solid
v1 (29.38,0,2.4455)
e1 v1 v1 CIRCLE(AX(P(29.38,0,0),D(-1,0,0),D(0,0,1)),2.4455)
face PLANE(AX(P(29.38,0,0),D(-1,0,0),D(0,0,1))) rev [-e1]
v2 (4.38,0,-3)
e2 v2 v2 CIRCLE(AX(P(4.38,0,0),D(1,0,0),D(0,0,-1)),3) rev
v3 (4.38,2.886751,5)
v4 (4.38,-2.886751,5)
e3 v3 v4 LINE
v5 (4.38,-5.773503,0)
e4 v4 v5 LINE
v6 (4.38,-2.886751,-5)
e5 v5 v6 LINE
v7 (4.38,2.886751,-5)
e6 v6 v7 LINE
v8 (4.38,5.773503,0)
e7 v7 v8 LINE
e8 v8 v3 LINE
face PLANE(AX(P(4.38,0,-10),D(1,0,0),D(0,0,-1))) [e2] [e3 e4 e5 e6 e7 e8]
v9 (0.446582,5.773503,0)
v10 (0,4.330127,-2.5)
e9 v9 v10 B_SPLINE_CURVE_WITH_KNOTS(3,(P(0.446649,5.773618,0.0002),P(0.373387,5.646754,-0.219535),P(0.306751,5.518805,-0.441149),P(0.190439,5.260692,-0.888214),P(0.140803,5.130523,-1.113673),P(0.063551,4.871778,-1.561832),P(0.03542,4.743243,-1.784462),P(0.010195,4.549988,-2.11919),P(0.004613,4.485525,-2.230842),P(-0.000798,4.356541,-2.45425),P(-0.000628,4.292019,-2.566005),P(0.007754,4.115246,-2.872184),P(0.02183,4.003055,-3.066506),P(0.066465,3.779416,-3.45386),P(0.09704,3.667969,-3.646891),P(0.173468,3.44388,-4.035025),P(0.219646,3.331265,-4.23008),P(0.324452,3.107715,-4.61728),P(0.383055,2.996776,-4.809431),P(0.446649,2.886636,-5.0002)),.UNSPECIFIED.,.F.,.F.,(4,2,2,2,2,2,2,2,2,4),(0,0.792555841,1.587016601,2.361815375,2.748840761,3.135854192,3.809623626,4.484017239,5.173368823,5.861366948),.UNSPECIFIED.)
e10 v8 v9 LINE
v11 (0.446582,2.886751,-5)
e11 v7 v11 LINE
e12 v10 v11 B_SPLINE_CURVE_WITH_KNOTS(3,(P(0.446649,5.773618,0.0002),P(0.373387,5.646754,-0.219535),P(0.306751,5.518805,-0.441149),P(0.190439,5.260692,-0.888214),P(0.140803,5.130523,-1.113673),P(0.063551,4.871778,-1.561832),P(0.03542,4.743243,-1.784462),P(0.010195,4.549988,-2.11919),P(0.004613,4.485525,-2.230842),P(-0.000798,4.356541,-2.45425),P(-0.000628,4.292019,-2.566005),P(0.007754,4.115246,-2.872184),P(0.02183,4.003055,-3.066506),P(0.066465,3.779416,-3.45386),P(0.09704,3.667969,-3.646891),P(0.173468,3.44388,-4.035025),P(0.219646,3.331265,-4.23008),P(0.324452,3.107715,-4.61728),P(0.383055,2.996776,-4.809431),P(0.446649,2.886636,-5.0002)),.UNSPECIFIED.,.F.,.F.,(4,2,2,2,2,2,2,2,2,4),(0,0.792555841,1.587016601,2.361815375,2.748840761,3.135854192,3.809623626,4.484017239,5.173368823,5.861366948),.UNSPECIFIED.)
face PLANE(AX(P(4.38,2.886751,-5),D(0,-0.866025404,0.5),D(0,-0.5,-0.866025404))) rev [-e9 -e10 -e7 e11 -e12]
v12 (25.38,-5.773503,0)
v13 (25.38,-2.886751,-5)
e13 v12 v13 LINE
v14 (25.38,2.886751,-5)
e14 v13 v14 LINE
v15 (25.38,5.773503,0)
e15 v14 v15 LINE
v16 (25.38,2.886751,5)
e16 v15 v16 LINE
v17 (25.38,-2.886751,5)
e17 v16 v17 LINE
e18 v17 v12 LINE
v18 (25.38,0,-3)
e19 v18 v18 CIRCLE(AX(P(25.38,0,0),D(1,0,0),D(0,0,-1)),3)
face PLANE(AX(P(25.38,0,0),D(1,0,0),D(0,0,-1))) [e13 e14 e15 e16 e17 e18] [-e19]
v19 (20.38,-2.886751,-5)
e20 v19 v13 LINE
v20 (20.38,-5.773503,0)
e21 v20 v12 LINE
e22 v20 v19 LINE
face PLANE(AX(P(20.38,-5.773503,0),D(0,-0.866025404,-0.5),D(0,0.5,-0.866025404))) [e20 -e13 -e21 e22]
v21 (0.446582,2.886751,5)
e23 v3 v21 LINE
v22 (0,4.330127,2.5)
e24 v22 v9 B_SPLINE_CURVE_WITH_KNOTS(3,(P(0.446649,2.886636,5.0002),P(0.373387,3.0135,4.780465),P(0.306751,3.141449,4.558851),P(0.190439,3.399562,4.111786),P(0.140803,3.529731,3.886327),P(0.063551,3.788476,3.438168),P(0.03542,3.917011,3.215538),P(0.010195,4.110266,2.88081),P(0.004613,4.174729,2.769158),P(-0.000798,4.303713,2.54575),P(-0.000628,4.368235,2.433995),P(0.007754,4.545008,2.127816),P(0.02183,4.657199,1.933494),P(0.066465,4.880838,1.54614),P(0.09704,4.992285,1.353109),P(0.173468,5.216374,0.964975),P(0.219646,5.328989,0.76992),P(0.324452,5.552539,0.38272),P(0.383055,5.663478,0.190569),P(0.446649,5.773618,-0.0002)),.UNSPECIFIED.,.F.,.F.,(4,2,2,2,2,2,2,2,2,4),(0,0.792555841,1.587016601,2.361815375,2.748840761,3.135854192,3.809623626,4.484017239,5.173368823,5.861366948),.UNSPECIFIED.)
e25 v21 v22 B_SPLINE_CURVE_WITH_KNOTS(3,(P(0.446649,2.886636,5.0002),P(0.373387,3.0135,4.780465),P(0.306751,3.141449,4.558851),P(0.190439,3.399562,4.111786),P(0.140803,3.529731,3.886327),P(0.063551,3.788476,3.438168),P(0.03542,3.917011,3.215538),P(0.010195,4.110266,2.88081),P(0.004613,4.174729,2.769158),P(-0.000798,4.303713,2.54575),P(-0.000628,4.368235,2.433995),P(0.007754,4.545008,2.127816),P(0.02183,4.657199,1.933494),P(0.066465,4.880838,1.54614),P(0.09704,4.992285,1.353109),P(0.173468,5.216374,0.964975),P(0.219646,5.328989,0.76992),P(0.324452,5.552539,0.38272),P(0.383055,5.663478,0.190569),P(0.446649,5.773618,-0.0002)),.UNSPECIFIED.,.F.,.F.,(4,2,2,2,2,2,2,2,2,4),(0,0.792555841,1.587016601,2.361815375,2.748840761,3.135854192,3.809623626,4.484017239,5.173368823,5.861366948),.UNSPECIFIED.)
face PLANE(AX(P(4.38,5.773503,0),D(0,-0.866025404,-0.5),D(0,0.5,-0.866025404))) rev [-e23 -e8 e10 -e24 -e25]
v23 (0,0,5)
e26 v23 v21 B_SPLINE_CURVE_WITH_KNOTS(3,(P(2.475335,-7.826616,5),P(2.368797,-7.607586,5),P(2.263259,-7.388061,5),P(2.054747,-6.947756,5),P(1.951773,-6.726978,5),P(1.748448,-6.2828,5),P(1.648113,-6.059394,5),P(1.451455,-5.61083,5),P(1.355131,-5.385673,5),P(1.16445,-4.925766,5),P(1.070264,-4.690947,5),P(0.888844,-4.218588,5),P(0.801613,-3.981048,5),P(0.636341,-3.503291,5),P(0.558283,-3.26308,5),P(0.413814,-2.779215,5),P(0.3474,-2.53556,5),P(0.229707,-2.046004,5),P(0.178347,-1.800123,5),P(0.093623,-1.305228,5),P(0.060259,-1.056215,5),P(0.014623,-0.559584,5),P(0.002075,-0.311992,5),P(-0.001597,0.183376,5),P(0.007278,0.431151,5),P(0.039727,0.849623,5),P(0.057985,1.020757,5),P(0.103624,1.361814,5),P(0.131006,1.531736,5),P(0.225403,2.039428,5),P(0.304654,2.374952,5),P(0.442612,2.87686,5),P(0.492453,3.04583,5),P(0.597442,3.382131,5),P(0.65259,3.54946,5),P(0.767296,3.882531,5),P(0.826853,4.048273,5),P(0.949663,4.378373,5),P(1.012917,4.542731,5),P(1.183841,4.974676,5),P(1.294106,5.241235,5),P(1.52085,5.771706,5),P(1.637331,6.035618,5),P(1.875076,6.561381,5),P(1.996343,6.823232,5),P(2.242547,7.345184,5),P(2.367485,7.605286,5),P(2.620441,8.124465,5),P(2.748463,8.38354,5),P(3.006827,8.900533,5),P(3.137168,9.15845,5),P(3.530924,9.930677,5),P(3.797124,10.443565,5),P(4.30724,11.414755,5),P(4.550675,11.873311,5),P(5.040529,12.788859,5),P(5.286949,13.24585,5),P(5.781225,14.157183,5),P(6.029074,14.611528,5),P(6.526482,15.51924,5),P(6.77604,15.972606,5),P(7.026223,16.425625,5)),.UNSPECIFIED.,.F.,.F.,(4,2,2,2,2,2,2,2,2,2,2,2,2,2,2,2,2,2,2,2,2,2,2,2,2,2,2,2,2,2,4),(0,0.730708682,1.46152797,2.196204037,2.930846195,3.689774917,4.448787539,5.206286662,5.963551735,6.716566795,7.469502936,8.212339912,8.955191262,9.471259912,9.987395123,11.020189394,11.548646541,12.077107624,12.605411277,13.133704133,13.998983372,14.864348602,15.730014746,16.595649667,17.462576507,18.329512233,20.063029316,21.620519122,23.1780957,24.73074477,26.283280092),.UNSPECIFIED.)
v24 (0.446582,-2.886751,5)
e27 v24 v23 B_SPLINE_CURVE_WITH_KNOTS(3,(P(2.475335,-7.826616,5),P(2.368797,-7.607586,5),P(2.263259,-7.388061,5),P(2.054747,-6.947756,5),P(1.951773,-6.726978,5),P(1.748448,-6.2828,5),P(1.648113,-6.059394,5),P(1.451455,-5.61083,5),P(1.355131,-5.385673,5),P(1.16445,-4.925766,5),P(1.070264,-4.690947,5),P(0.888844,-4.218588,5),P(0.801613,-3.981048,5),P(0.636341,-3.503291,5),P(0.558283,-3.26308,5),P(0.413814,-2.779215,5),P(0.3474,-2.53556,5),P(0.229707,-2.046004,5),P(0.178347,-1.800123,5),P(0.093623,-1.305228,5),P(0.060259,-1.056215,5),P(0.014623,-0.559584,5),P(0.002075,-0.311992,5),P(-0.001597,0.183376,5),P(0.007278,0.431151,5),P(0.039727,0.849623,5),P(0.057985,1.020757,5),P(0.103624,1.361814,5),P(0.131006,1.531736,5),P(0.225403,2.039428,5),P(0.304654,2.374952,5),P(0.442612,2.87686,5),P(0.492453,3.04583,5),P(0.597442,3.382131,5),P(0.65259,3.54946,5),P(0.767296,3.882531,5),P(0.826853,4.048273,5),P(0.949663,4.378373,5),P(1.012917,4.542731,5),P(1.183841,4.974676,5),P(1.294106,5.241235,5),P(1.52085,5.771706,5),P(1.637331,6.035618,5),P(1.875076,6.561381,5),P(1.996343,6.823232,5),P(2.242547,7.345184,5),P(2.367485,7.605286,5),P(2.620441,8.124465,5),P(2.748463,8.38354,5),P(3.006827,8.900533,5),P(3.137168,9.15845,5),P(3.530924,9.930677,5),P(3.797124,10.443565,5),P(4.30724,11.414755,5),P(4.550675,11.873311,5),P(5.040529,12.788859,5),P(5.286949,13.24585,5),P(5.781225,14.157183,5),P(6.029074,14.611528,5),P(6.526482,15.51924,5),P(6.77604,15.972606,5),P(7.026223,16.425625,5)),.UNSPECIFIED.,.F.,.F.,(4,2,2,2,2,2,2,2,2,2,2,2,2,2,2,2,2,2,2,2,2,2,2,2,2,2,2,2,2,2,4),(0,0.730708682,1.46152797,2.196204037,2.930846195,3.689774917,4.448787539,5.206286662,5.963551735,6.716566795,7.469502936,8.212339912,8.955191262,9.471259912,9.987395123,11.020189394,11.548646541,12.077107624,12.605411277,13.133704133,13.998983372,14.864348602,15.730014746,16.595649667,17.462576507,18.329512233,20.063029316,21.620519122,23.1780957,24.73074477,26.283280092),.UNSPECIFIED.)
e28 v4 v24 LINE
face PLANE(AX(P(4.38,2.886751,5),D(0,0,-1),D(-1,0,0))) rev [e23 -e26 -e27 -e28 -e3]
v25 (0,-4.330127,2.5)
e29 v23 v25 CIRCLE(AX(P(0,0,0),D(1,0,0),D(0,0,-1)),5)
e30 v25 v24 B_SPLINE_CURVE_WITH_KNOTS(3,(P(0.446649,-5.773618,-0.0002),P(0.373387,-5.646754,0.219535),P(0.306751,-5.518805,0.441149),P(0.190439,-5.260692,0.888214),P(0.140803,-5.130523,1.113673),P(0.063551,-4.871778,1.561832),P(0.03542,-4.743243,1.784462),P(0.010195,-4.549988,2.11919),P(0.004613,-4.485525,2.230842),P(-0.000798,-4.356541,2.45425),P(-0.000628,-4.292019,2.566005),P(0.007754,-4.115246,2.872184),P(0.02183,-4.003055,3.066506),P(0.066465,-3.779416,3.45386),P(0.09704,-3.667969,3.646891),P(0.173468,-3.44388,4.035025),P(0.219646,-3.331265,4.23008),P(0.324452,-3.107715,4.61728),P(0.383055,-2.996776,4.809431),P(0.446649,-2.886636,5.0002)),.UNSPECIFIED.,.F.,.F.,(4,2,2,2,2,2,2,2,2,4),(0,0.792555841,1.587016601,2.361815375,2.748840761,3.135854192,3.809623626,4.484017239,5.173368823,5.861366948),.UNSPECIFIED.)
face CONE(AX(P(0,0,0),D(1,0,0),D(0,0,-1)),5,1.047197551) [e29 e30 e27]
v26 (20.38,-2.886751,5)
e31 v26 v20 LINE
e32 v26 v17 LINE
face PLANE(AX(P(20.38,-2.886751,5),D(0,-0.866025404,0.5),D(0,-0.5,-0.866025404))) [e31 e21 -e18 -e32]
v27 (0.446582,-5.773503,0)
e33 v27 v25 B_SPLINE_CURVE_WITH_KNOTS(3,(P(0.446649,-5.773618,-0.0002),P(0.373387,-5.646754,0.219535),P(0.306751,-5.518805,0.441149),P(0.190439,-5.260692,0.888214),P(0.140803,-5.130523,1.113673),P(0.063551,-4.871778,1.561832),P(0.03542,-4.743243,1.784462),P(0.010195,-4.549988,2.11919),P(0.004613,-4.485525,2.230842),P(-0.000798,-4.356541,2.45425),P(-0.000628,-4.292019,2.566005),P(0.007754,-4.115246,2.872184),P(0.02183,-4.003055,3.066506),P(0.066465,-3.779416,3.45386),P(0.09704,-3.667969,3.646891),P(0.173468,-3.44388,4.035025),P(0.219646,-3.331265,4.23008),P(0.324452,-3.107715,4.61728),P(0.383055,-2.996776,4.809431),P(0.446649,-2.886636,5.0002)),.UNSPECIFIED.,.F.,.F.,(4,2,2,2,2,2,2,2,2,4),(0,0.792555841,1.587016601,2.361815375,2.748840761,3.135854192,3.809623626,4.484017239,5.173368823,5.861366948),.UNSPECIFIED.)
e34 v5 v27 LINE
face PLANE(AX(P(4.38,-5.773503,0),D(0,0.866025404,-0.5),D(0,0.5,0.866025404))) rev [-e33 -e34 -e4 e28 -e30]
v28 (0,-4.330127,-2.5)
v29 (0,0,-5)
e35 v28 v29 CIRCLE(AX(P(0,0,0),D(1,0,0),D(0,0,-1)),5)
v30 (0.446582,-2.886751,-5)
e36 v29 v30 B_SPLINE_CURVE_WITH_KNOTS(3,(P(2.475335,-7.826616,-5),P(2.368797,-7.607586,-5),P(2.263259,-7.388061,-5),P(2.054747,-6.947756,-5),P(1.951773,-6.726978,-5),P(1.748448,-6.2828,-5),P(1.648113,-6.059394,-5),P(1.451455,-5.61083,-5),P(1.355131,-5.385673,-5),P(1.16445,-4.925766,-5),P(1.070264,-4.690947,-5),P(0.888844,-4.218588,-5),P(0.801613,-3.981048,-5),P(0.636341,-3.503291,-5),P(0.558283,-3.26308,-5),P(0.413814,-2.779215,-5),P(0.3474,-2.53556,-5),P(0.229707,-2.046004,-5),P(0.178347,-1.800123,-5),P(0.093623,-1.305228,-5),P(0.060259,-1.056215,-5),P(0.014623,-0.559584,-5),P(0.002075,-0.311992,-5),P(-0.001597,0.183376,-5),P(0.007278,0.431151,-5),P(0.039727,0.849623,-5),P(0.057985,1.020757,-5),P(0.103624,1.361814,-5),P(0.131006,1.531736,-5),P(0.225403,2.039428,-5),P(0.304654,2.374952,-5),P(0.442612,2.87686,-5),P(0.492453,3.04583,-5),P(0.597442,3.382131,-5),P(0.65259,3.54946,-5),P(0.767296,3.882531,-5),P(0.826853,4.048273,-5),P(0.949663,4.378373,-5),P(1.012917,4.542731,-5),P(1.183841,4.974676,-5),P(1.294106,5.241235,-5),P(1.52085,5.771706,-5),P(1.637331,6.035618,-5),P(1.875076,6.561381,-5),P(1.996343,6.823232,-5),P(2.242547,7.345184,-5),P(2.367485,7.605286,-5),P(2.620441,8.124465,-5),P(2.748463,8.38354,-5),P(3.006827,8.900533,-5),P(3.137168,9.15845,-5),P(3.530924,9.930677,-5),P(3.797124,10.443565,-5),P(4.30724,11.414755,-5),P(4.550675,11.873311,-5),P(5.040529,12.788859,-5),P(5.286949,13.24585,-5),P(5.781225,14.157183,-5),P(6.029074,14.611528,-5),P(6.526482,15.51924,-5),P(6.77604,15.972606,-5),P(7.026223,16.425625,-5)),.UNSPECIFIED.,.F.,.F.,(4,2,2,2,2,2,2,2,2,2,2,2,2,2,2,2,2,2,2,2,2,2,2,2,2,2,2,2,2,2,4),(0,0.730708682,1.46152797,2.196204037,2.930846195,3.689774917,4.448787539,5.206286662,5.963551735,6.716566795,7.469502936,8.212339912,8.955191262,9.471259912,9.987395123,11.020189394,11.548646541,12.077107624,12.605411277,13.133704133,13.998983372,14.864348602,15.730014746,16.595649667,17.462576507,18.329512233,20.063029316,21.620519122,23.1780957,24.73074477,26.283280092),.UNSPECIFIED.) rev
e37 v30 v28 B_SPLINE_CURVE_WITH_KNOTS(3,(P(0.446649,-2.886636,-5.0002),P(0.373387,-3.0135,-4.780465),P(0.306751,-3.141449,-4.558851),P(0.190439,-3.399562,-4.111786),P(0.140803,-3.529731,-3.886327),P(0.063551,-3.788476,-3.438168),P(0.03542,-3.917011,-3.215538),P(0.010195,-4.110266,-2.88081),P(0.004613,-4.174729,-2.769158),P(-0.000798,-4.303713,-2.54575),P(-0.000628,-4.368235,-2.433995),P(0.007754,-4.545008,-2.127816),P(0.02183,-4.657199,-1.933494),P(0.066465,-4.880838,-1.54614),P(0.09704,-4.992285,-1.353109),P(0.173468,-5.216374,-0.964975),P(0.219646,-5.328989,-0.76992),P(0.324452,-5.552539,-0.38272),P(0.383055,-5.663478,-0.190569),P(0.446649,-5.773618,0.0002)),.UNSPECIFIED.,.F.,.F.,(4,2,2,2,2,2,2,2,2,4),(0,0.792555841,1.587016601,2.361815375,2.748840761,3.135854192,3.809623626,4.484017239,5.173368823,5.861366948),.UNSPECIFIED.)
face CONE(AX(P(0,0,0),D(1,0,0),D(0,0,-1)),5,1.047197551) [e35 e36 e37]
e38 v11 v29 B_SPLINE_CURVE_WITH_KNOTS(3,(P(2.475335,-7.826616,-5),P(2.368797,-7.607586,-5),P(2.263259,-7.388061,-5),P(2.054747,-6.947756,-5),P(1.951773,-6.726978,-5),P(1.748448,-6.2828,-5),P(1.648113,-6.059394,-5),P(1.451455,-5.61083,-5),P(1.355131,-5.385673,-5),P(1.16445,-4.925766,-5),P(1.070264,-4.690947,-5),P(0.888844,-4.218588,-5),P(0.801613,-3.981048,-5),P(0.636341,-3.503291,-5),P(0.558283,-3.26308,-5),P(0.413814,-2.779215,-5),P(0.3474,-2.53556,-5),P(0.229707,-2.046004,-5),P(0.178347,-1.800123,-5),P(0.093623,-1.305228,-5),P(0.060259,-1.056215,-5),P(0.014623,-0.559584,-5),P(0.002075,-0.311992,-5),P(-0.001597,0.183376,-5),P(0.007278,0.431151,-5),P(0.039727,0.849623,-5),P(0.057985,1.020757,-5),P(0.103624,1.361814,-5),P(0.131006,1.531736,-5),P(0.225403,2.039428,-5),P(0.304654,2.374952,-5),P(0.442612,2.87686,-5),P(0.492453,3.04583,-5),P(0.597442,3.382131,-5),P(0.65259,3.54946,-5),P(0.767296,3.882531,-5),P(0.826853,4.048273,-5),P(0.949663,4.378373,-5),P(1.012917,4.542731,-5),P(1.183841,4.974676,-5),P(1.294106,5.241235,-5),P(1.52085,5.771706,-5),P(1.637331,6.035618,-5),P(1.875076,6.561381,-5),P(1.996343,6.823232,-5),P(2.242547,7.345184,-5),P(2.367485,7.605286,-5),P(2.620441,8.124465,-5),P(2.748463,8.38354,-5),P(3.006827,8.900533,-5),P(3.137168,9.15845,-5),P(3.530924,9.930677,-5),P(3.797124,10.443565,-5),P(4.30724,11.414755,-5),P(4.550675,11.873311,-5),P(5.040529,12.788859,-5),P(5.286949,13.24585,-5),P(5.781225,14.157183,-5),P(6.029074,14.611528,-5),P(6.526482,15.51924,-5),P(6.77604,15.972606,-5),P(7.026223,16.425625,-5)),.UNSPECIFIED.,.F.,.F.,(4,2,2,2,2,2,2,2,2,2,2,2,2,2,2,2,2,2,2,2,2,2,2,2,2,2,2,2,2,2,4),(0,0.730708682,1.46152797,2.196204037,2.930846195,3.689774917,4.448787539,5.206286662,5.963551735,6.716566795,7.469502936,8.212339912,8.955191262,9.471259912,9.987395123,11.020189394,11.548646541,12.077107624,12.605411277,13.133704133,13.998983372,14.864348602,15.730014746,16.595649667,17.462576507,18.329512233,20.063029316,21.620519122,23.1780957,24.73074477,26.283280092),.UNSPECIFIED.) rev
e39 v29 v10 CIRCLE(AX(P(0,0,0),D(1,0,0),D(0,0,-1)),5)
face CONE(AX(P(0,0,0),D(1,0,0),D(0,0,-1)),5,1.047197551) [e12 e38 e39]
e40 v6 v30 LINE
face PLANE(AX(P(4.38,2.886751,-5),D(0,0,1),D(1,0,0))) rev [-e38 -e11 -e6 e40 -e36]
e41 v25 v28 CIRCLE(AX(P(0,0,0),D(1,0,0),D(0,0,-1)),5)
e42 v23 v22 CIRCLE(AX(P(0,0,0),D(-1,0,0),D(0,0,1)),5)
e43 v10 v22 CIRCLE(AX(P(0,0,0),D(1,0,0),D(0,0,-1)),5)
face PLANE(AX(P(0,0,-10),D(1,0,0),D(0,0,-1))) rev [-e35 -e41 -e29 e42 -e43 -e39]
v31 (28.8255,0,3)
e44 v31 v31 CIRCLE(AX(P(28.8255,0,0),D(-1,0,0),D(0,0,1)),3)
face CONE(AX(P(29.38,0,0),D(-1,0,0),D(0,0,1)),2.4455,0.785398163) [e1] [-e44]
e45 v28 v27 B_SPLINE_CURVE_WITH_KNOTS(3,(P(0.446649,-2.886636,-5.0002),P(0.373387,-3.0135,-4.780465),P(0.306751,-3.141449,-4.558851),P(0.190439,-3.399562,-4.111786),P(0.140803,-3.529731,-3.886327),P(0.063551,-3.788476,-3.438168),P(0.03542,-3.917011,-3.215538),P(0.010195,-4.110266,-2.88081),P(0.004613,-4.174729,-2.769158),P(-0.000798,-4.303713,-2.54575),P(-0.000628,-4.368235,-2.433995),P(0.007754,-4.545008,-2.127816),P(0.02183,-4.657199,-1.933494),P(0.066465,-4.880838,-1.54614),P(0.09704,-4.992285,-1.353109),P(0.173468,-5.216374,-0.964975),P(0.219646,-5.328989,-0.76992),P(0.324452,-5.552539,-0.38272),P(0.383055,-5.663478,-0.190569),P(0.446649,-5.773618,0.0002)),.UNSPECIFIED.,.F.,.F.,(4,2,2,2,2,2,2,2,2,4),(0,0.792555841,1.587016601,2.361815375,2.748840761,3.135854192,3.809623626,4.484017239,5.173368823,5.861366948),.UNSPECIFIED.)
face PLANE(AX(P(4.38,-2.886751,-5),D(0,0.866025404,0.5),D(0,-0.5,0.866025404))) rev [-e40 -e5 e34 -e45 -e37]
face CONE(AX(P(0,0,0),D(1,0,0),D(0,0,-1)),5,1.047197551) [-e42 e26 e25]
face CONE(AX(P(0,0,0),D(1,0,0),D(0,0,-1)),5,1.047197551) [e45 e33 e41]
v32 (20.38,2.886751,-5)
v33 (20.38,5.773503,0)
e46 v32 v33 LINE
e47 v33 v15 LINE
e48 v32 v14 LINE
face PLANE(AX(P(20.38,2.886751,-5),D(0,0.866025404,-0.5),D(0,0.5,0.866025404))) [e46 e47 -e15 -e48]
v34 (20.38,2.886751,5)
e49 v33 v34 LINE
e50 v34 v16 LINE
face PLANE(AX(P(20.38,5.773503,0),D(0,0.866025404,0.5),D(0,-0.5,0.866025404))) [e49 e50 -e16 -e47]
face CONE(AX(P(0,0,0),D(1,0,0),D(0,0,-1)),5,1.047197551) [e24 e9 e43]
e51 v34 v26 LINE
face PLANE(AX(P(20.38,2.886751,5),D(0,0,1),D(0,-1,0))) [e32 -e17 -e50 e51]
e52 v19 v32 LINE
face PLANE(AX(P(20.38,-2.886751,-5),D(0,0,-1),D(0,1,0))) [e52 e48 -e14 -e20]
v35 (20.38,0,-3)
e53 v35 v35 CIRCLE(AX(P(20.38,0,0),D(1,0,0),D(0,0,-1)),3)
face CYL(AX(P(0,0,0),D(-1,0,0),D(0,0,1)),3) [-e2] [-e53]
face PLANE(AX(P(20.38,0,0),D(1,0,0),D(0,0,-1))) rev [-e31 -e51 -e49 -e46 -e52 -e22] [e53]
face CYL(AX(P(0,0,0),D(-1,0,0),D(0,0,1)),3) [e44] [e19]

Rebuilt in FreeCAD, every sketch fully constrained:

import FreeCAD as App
import Part
import Sketcher
Q = App.Units.Quantity


def add_polygon(sketch, points):
    """Adds a closed chain of lines whose ends are joined by coincident constraints."""
    first, n = sketch.GeometryCount, len(points)
    for a, b in zip(points, points[1:] + points[:1]):
        sketch.addGeometry(Part.LineSegment(App.Vector(*a, 0), App.Vector(*b, 0)), False)
    for i in range(n):
        sketch.addConstraint(Sketcher.Constraint("Coincident", first + i, 2, first + (i + 1) % n, 1))

doc = App.newDocument("Part")
body = doc.addObject("PartDesign::Body", "Body")

sketch1 = body.newObject("Sketcher::SketchObject", "Sketch")
sketch1.AttachmentSupport = (doc.getObject("YZ_Plane"), [""])
sketch1.MapMode = "FlatFace"
add_polygon(sketch1, [(-3, -5), (3, -5), (6, 0), (3, 5), (-3, 5), (-6, 0)])
sketch1.addConstraint([
    Sketcher.Constraint("Horizontal", 0),
    Sketcher.Constraint("Horizontal", 3),
    Sketcher.Constraint("Symmetric", 0, 2, 3, 2, -1, 1),
    Sketcher.Constraint("Symmetric", 1, 2, 4, 2, -1, 1),
    Sketcher.Constraint("PointOnObject", 1, 2, -1),
    Sketcher.Constraint("Parallel", 2, 5),
    Sketcher.Constraint("Vertical", 0, 2, 2, 2),
    Sketcher.Constraint("Angle", 1, Q("60 deg")),
    Sketcher.Constraint("DistanceY", 0, 2, -1, 1, Q("5 mm")),
    Sketcher.Constraint("DistanceX", 0, 1, 0, 2, Q("5.773503 mm")),
])
pad1 = body.newObject("PartDesign::Pad", "Pad")
pad1.Profile = sketch1
pad1.Length = 4.38

sketch2 = body.newObject("Sketcher::SketchObject", "Sketch001")
sketch2.AttachmentSupport = (doc.getObject("XY_Plane"), [""])
sketch2.MapMode = "FlatFace"
add_polygon(sketch2, [(0, 0), (29.4, 0), (29.4, 2.4), (28.8, 3), (0, 3)])
sketch2.addConstraint([
    Sketcher.Constraint("Horizontal", 0),
    Sketcher.Constraint("Vertical", 1),
    Sketcher.Constraint("Horizontal", 3),
    Sketcher.Constraint("Vertical", 4),
    Sketcher.Constraint("Coincident", 4, 2, -1, 1),
    Sketcher.Constraint("DistanceY", 4, 2, 4, 1, Q("3 mm")),
    Sketcher.Constraint("Angle", 2, Q("135 deg")),
    Sketcher.Constraint("DistanceX", 0, 1, 0, 2, Q("29.38 mm")),
    Sketcher.Constraint("DistanceX", 3, 2, 3, 1, Q("28.8255 mm")),
])
revolution = body.newObject("PartDesign::Revolution", "Revolution")
revolution.Profile = sketch2
revolution.ReferenceAxis = (sketch2, ["H_Axis"])
revolution.Angle = 360

sketch3 = body.newObject("Sketcher::SketchObject", "Sketch002")
sketch3.AttachmentSupport = (doc.getObject("XY_Plane"), [""])
sketch3.MapMode = "FlatFace"
add_polygon(sketch3, [(0, 5), (3, 11), (3, 16), (-10, 16), (-10, 5)])
sketch3.addConstraint([
    Sketcher.Constraint("Vertical", 1),
    Sketcher.Constraint("Horizontal", 2),
    Sketcher.Constraint("Vertical", 3),
    Sketcher.Constraint("Horizontal", 4),
    Sketcher.Constraint("PointOnObject", 4, 2, -2),
    Sketcher.Constraint("DistanceX", 4, 1, 4, 2, Q("10 mm")),
    Sketcher.Constraint("DistanceY", 1, 1, 1, 2, Q("5 mm")),
    Sketcher.Constraint("Angle", 0, Q("60 deg")),
    Sketcher.Constraint("DistanceY", -1, 1, 3, 2, Q("5 mm")),
    Sketcher.Constraint("DistanceX", 2, 2, 2, 1, Q("13.333333 mm")),
])
groove = body.newObject("PartDesign::Groove", "Groove")
groove.Profile = sketch3
groove.ReferenceAxis = (sketch3, ["H_Axis"])
groove.Angle = 360

sketch4 = body.newObject("Sketcher::SketchObject", "Sketch003")
sketch4.AttachmentSupport = (doc.getObject("YZ_Plane"), [""])
sketch4.MapMode = "FlatFace"
sketch4.AttachmentOffset = App.Placement(App.Vector(0, 0, 25.38), App.Rotation())
add_polygon(sketch4, [(6, 0), (3, 5), (-3, 5), (-6, 0), (-3, -5), (3, -5)])
sketch4.addConstraint([
    Sketcher.Constraint("Horizontal", 1),
    Sketcher.Constraint("Horizontal", 4),
    Sketcher.Constraint("Symmetric", 0, 2, 3, 2, -1, 1),
    Sketcher.Constraint("Symmetric", 2, 2, 5, 2, -1, 1),
    Sketcher.Constraint("PointOnObject", 2, 2, -1),
    Sketcher.Constraint("Parallel", 2, 5),
    Sketcher.Constraint("Vertical", 1, 2, 3, 2),
    Sketcher.Constraint("Angle", 0, Q("120 deg")),
    Sketcher.Constraint("DistanceY", -1, 1, 0, 2, Q("5 mm")),
    Sketcher.Constraint("DistanceX", 1, 2, 1, 1, Q("5.773503 mm")),
])
pad2 = body.newObject("PartDesign::Pad", "Pad001")
pad2.Profile = sketch4
pad2.Length = 5
pad2.Reversed = True

doc.recompute()
